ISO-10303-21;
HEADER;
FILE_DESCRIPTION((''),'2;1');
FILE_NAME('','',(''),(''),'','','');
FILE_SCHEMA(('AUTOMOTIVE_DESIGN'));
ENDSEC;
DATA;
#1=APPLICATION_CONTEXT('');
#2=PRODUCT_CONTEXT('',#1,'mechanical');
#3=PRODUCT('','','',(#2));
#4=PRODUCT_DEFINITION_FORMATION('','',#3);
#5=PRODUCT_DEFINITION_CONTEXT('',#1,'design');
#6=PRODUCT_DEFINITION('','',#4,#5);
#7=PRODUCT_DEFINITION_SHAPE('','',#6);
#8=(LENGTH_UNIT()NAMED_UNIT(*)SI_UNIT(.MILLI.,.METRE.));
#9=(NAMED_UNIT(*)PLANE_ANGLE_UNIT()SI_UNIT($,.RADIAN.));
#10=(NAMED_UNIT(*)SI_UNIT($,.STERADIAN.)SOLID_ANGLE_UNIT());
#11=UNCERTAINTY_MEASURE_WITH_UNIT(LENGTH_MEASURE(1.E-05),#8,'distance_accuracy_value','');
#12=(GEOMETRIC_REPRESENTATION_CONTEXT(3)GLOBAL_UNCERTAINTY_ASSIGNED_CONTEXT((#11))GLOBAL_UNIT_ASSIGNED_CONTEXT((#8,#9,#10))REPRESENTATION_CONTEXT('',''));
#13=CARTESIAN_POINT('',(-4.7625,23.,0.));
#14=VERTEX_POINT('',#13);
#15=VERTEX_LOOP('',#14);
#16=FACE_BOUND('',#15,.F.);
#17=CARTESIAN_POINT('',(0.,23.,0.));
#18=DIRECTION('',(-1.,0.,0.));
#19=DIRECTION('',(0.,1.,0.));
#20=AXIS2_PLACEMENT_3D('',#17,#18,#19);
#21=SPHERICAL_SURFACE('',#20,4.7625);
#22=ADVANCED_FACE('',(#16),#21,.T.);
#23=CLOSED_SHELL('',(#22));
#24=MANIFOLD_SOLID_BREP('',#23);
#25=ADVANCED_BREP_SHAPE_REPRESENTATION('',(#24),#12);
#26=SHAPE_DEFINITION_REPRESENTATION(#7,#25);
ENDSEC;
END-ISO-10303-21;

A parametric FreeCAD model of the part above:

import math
import FreeCAD as App
import Part
import Sketcher
Q = App.Units.Quantity

doc = App.newDocument("Part")
params = doc.addObject("Spreadsheet::Sheet", "Params")
for row, (alias, value) in enumerate([
    ("sketch1_radius", "0.1875 in"),
    ("revolution_angle", "360 deg"),
], start=1):
    params.set(f"A{row}", alias)
    params.set(f"B{row}", "=" + value)
    params.setAlias(f"B{row}", alias)

body = doc.addObject("PartDesign::Body", "Body")

# Sketch on XY plane
sketch1 = body.newObject("Sketcher::SketchObject", "Sketch")
sketch1.AttachmentSupport = (doc.getObject("XY_Plane"), [""])
sketch1.MapMode = "FlatFace"
sketch1.addGeometry([
    Part.LineSegment(App.Vector(-4.8, 23, 0), App.Vector(4.8, 23, 0)),
    Part.ArcOfCircle(Part.Circle(App.Vector(0, 23, 0), App.Vector(0, 0, 1), 4.8), math.radians(0), math.radians(180)),
], False)
sketch1.addGeometry(Part.LineSegment(App.Vector(-4.8, 23, 0), App.Vector(4.8, 23, 0)), True)  # axis
sketch1.addConstraint([
    Sketcher.Constraint("Coincident", 0, 1, 1, 2),
    Sketcher.Constraint("Coincident", 1, 1, 0, 2),
    Sketcher.Constraint("Horizontal", 0),
    Sketcher.Constraint("Horizontal", 2),
    Sketcher.Constraint("Coincident", 2, 1, 0, 1),
    Sketcher.Constraint("PointOnObject", 1, 3, -2),
    Sketcher.Constraint("Horizontal", 1, 3, 0, 1),
    Sketcher.Constraint("Equal", 0, 2),
    Sketcher.Constraint("Radius", 1, Q("0.1875 in")),
    Sketcher.Constraint("DistanceY", -1, 1, 1, 3, Q("0.9055 in")),
])
sketch1.setExpression("Constraints[8]", "Params.sketch1_radius")
revolution = body.newObject("PartDesign::Revolution", "Revolution")
revolution.Profile = sketch1
revolution.ReferenceAxis = (sketch1, ["Axis0"])
revolution.setExpression("Angle", "Params.revolution_angle")

doc.recompute()
